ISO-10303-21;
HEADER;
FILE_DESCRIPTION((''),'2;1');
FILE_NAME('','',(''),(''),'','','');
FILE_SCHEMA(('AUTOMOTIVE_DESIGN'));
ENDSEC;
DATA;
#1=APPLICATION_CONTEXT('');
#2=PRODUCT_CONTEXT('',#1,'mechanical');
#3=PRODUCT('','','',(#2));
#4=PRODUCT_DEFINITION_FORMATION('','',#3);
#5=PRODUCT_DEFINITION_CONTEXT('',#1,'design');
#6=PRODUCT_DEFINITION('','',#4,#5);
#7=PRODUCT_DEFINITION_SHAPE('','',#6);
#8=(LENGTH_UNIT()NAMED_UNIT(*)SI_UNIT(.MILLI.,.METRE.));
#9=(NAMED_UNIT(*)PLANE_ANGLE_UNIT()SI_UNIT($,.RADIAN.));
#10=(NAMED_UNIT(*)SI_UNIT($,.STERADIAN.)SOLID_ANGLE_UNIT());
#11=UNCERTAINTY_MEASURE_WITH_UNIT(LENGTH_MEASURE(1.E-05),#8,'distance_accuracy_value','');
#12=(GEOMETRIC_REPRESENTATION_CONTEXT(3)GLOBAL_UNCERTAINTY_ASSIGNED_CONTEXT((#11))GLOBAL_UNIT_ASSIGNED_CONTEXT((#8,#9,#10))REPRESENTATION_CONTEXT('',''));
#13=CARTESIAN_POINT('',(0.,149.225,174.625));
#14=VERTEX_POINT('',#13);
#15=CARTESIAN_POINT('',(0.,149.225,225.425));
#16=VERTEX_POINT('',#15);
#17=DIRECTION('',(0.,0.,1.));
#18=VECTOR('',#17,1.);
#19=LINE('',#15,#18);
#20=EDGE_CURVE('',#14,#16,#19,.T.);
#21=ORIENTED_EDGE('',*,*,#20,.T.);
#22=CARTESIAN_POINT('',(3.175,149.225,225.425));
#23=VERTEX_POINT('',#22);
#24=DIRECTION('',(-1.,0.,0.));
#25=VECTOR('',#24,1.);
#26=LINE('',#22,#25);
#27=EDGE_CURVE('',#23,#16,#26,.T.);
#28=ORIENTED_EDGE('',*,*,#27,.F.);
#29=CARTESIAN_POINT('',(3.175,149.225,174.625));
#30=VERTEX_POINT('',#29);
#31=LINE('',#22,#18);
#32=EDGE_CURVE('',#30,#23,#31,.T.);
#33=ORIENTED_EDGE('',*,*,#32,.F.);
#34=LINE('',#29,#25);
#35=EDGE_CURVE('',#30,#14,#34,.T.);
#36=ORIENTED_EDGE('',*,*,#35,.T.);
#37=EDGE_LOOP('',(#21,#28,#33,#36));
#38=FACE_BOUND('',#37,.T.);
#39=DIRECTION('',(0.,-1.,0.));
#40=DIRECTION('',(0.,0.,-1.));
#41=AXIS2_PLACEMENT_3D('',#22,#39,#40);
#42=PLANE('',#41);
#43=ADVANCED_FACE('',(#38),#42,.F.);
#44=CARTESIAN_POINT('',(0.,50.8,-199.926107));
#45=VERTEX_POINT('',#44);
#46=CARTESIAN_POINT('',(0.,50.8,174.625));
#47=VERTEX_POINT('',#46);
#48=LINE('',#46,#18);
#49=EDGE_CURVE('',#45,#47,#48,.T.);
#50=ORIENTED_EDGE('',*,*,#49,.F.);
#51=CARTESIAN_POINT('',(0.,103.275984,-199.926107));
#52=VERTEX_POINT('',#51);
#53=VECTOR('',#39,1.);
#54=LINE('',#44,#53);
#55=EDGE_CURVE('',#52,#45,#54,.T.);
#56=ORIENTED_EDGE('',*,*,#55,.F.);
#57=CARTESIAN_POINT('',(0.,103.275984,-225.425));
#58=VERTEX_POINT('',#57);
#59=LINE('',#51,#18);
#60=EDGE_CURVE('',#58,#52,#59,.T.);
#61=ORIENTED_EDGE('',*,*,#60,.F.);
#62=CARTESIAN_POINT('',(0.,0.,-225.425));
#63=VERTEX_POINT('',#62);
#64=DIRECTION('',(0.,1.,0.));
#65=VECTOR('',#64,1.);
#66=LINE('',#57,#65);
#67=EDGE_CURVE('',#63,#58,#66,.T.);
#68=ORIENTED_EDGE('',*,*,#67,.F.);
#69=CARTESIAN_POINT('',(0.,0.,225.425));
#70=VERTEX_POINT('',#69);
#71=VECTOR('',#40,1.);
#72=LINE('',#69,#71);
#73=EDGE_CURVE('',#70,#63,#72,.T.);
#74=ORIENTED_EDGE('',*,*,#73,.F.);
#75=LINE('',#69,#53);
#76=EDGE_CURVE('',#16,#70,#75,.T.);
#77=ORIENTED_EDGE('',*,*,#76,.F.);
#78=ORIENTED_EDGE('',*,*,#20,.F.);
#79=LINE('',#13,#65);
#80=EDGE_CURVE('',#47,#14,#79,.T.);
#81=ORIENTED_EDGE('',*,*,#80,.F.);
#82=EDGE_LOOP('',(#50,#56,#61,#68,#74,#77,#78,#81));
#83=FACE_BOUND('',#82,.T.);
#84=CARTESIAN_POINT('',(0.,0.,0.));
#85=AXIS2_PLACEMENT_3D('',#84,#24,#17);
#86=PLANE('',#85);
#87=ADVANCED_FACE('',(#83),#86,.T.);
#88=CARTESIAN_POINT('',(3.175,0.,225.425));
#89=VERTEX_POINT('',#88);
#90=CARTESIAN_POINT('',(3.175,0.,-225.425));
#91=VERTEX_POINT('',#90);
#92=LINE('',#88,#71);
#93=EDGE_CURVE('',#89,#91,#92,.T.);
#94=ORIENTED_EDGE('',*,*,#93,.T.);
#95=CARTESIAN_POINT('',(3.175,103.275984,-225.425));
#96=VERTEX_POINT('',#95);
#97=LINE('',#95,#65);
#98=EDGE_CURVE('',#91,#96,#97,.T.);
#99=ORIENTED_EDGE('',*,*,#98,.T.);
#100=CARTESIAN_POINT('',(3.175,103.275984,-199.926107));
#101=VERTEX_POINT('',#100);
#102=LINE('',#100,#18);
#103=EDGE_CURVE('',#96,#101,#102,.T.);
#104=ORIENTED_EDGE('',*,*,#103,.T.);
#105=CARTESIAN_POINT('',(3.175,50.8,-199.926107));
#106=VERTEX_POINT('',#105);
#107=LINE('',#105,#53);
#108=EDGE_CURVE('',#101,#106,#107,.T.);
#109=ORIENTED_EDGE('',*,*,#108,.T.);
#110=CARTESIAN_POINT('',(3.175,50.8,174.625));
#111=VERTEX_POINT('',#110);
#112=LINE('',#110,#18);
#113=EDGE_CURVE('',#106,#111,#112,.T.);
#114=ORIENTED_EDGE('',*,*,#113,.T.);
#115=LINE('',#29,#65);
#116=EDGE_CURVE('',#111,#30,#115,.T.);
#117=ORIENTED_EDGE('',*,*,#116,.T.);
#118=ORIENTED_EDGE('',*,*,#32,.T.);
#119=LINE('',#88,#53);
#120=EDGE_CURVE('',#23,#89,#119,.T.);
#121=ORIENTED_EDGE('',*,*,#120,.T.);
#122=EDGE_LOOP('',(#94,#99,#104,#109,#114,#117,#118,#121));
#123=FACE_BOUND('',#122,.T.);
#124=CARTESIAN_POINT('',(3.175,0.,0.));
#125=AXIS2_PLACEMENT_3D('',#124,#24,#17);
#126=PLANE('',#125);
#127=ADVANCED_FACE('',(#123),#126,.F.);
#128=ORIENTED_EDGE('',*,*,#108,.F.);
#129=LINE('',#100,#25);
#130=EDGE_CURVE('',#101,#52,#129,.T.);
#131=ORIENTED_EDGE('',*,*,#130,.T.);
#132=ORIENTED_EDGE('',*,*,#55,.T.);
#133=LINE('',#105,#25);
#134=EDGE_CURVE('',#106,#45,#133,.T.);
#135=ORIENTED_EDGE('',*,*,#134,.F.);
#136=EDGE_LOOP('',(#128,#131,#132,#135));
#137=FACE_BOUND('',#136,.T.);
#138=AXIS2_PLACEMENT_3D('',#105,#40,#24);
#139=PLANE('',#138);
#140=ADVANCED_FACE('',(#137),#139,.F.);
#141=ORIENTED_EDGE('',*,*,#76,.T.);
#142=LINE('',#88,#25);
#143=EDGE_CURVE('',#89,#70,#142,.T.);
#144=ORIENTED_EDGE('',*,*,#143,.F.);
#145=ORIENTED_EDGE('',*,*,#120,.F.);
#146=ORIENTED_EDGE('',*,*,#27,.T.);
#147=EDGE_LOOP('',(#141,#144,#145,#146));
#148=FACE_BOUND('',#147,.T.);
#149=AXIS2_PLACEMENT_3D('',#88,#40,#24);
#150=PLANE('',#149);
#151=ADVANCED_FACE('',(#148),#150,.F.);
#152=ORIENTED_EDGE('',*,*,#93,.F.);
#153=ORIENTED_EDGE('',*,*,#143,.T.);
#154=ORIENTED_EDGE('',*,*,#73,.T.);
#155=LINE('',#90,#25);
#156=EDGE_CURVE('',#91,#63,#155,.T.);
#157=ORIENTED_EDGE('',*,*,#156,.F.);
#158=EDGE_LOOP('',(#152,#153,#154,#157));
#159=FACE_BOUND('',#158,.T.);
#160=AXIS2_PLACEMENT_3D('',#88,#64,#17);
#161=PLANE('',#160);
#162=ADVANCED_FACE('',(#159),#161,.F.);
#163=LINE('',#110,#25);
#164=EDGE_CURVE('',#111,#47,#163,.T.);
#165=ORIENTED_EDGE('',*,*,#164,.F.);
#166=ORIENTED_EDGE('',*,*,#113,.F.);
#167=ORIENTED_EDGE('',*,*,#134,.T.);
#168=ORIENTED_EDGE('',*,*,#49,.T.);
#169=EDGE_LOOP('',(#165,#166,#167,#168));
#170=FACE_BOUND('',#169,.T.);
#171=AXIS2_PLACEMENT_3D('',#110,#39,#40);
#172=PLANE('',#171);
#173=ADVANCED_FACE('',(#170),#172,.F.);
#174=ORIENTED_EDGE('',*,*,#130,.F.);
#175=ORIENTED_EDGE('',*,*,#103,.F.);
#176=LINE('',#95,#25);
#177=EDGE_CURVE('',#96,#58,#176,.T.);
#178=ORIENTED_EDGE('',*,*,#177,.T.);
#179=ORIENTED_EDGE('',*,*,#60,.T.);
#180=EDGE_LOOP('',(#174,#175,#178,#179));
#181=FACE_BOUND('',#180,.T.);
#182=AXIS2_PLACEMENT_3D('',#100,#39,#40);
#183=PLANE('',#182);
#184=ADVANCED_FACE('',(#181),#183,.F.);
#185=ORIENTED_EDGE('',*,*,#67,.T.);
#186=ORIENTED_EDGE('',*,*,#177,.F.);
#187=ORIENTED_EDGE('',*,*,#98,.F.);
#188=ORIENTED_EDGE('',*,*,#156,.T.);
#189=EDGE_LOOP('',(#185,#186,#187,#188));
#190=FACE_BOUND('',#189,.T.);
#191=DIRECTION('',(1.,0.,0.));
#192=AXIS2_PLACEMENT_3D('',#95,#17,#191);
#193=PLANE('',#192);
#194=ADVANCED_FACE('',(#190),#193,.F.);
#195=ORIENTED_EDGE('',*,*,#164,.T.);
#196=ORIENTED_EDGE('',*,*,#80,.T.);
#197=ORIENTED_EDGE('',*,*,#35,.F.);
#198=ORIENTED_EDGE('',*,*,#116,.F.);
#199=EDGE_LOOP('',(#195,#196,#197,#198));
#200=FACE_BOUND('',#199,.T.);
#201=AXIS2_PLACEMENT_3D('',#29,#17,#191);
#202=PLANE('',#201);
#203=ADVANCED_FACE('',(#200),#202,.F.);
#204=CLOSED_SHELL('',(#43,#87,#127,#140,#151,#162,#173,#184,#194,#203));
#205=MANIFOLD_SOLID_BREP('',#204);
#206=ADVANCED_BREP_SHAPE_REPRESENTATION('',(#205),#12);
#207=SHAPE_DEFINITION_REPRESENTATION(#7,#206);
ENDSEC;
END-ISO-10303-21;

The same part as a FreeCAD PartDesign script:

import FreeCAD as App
import Part
import Sketcher
Q = App.Units.Quantity


def add_polygon(sketch, points):
    """Adds a closed chain of lines whose ends are joined by coincident constraints."""
    first, n = sketch.GeometryCount, len(points)
    for a, b in zip(points, points[1:] + points[:1]):
        sketch.addGeometry(Part.LineSegment(App.Vector(*a, 0), App.Vector(*b, 0)), False)
    for i in range(n):
        sketch.addConstraint(Sketcher.Constraint("Coincident", first + i, 2, first + (i + 1) % n, 1))

doc = App.newDocument("Part")
body = doc.addObject("PartDesign::Body", "Body")

sketch1 = body.newObject("Sketcher::SketchObject", "Sketch")
sketch1.AttachmentSupport = (doc.getObject("YZ_Plane"), [""])
sketch1.MapMode = "FlatFace"
add_polygon(sketch1, [(0, 225), (0, -225), (103, -225), (103, -200), (51, -200), (51, 175), (149, 175), (149, 225)])
sketch1.addConstraint([
    Sketcher.Constraint("Vertical", 0),
    Sketcher.Constraint("Horizontal", 1),
    Sketcher.Constraint("Vertical", 2),
    Sketcher.Constraint("Horizontal", 3),
    Sketcher.Constraint("Vertical", 4),
    Sketcher.Constraint("Horizontal", 5),
    Sketcher.Constraint("Vertical", 6),
    Sketcher.Constraint("Horizontal", 7),
    Sketcher.Constraint("Symmetric", 0, 2, 7, 2, -1, 1),
    Sketcher.Constraint("DistanceY", 6, 1, 6, 2, Q("2 in")),
    Sketcher.Constraint("DistanceX", -1, 1, 3, 2, Q("2 in")),
    Sketcher.Constraint("DistanceY", 0, 2, 0, 1, Q("17.75 in")),
    Sketcher.Constraint("DistanceX", 5, 1, 5, 2, Q("3.875 in")),
    Sketcher.Constraint("DistanceX", 1, 1, 1, 2, Q("103.275984 mm")),
    Sketcher.Constraint("DistanceY", 2, 1, 2, 2, Q("25.498893 mm")),
])
pad1 = body.newObject("PartDesign::Pad", "Pad")
pad1.Profile = sketch1
pad1.Length = Q("0.125 in")

doc.recompute()
